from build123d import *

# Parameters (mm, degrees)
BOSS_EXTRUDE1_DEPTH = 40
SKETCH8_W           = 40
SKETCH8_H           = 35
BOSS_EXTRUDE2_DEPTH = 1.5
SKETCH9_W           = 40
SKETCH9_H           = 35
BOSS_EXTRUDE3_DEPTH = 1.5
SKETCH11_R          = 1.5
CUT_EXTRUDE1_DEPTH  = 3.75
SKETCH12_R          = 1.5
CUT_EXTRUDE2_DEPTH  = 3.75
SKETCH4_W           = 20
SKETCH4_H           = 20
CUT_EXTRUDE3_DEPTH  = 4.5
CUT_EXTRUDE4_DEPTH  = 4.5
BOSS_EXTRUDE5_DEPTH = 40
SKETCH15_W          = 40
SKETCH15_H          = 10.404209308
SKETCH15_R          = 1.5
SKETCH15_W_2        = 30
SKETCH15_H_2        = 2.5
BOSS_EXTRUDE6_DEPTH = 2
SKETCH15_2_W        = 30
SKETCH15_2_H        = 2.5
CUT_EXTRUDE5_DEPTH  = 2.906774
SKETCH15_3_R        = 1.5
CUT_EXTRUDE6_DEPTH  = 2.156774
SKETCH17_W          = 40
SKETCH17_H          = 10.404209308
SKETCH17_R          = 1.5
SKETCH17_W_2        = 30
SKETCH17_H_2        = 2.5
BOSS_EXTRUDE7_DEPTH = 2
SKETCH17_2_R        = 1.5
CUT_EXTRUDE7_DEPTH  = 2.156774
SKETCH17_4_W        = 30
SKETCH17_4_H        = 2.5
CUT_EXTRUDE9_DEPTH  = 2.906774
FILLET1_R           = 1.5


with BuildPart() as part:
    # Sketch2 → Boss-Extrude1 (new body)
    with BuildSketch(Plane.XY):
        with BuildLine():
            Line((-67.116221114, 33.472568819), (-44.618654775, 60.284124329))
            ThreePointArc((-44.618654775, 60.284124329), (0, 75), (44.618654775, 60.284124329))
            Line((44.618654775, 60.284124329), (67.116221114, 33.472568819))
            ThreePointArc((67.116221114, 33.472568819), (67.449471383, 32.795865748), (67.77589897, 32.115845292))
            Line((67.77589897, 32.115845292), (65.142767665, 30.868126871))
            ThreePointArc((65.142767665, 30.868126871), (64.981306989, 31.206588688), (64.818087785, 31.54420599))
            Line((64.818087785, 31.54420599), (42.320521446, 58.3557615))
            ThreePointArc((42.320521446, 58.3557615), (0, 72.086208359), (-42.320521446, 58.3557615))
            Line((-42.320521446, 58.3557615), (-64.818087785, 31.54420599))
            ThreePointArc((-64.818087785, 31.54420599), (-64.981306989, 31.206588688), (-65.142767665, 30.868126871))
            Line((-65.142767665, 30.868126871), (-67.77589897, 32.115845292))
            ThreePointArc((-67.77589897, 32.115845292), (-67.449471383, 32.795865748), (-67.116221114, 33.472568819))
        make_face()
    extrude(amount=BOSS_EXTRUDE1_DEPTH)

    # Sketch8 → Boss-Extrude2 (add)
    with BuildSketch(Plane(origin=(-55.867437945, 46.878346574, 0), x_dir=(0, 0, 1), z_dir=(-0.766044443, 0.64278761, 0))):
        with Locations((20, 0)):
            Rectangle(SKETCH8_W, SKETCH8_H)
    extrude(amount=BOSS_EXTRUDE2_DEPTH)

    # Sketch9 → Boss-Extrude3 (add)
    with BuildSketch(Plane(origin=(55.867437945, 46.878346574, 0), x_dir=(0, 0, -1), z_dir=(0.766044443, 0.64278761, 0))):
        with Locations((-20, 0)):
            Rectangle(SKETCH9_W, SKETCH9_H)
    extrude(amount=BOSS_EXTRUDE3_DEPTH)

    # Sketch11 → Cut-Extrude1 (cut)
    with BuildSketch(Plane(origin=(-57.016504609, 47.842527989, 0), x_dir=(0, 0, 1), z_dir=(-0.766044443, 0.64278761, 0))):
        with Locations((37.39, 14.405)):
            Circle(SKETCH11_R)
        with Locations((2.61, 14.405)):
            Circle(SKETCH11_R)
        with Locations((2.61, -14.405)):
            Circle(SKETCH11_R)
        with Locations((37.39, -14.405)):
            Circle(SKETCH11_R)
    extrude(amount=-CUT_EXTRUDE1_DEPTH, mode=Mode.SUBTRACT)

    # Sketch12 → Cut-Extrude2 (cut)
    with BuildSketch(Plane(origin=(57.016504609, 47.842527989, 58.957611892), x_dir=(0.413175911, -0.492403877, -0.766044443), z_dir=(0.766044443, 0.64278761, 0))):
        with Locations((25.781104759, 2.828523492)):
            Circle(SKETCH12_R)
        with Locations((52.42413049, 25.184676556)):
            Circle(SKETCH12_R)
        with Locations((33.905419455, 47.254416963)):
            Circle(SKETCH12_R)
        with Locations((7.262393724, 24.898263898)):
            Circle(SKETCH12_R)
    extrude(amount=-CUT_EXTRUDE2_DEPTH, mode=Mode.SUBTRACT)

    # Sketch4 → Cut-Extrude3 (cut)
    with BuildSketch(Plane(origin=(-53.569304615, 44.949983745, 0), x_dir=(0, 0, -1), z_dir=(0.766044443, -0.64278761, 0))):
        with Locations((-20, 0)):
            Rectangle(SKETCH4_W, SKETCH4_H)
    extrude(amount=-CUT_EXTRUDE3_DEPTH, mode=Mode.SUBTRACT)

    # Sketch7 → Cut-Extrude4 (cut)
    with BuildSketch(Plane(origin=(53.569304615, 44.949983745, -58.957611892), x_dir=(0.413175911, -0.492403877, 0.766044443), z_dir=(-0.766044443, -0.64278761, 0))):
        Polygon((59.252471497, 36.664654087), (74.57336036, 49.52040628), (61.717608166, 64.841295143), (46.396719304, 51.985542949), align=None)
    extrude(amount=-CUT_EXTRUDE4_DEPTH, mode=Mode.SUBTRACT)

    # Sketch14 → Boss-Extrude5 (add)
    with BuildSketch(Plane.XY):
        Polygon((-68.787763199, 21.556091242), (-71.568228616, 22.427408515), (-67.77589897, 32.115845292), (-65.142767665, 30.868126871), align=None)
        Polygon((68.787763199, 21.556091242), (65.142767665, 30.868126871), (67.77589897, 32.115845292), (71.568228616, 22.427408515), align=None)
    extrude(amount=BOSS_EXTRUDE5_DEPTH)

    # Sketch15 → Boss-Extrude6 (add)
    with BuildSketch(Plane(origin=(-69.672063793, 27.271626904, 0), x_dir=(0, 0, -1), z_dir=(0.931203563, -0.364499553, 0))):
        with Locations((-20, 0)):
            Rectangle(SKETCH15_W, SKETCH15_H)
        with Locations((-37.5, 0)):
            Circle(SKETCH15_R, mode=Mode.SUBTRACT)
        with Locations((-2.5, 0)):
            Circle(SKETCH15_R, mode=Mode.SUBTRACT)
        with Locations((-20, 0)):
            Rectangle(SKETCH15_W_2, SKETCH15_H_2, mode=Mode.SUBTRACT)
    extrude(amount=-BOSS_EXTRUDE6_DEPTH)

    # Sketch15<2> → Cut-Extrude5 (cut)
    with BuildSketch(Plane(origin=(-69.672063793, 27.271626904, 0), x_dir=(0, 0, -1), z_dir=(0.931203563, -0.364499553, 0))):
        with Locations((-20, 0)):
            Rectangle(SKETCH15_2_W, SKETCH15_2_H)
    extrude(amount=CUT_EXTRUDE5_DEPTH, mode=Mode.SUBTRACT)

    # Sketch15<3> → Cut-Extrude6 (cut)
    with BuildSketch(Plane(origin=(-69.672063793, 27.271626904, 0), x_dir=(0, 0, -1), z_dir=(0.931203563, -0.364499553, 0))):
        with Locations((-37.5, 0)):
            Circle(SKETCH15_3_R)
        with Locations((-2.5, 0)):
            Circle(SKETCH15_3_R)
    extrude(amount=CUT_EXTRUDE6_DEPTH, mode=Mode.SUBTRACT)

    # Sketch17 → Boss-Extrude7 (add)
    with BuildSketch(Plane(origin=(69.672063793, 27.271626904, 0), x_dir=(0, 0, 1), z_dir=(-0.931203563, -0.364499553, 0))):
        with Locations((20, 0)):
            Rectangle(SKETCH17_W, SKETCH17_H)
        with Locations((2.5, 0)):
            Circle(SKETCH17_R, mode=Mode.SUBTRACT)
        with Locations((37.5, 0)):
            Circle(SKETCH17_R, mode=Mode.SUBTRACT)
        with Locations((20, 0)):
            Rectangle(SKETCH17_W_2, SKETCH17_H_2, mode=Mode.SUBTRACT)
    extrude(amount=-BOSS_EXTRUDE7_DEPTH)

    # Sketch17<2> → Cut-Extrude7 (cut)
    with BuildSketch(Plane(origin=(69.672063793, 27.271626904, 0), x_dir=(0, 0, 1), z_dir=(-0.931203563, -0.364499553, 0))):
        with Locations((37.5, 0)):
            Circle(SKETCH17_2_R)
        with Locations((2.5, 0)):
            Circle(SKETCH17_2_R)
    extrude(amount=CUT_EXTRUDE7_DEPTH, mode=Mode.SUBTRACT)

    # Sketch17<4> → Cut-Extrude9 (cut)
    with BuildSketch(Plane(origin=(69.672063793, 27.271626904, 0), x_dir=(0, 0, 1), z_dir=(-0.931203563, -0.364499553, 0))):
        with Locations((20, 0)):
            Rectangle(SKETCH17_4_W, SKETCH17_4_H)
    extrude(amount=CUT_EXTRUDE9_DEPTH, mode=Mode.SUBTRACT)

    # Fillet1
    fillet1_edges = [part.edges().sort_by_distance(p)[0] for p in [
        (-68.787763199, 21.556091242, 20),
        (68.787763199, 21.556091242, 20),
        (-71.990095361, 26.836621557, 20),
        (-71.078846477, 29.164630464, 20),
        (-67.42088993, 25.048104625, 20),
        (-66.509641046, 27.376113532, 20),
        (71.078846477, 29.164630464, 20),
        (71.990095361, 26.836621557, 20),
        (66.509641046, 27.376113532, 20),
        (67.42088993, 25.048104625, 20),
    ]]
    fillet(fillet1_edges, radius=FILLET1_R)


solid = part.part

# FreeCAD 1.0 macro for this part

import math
import FreeCAD as App
import Part
import Sketcher
from FreeCAD import Vector
Q = App.Units.Quantity


def edges_at(feature, points):
    """Names of the edges that pass closest to the given points."""
    edges = feature.Shape.Edges
    near = lambda p: min(range(len(edges)), key=lambda i: edges[i].distToShape(Part.Vertex(*p))[0])
    return sorted({f"Edge{near(p) + 1}" for p in points})

doc = App.newDocument("Part")
body = doc.addObject("PartDesign::Body", "Body")

# Sketch on XY plane
sketch1 = body.newObject("Sketcher::SketchObject", "Sketch")
sketch1.AttachmentSupport = (doc.getObject("XY_Plane"), [""])
sketch1.MapMode = "FlatFace"
sketch1.addGeometry([
    Part.LineSegment(Vector(-44.618655, 60.284124, 0), Vector(-67.116221, 33.472569, 0)),  # 0
    Part.ArcOfCircle(Part.Circle(Vector(-0.000002, 0.000001, 0), Vector(0, 0, 1), 74.999998), math.radians(153.493399), math.radians(154.645904)),  # 1
    Part.LineSegment(Vector(-67.775899, 32.115845, 0), Vector(-65.142768, 30.868127, 0)),  # 2
    Part.ArcOfCircle(Part.Circle(Vector(0.000033, -0.000016, 0), Vector(0, 0, 1), 72.086245), math.radians(154.049784), math.radians(154.645904)),  # 3
    Part.LineSegment(Vector(-64.818088, 31.544206, 0), Vector(-42.320521, 58.355761, 0)),  # 4
    Part.ArcOfCircle(Part.Circle(Vector(0, 0, 0), Vector(0, 0, 1), 72.086208), math.radians(54.049784), math.radians(125.950216)),  # 5
    Part.LineSegment(Vector(42.320521, 58.355761, 0), Vector(64.818088, 31.544206, 0)),  # 6
    Part.ArcOfCircle(Part.Circle(Vector(-0.000033, -0.000016, 0), Vector(0, 0, 1), 72.086245), math.radians(25.354096), math.radians(25.950216)),  # 7
    Part.LineSegment(Vector(65.142768, 30.868127, 0), Vector(67.775899, 32.115845, 0)),  # 8
    Part.ArcOfCircle(Part.Circle(Vector(0.000002, 0.000001, 0), Vector(0, 0, 1), 74.999998), math.radians(25.354096), math.radians(26.506601)),  # 9
    Part.LineSegment(Vector(67.116221, 33.472569, 0), Vector(44.618655, 60.284124, 0)),  # 10
    Part.ArcOfCircle(Part.Circle(Vector(0, 0, 0), Vector(0, 0, 1), 75), math.radians(53.493399), math.radians(126.506601)),  # 11
], False)
sketch1.addConstraint([
    Sketcher.Constraint("Coincident", 0, 2, 1, 1),
    Sketcher.Constraint("Coincident", 1, 2, 2, 1),
    Sketcher.Constraint("Coincident", 2, 2, 3, 2),
    Sketcher.Constraint("Coincident", 3, 1, 4, 1),
    Sketcher.Constraint("Coincident", 4, 2, 5, 2),
    Sketcher.Constraint("Coincident", 5, 1, 6, 1),
    Sketcher.Constraint("Coincident", 6, 2, 7, 2),
    Sketcher.Constraint("Coincident", 7, 1, 8, 1),
    Sketcher.Constraint("Coincident", 8, 2, 9, 1),
    Sketcher.Constraint("Coincident", 9, 2, 10, 1),
    Sketcher.Constraint("Coincident", 10, 2, 11, 1),
    Sketcher.Constraint("Coincident", 11, 2, 0, 1),
    Sketcher.Constraint("Coincident", 1, 3, -1, 1),
    Sketcher.Constraint("Coincident", 5, 3, -1, 1),
    Sketcher.Constraint("Coincident", 9, 3, -1, 1),
    Sketcher.Constraint("Coincident", 11, 3, -1, 1),
    Sketcher.Constraint("Equal", 3, 7),
    Sketcher.Constraint("Equal", 1, 9),
    Sketcher.Constraint("Symmetric", 3, 3, 7, 3, -2),
    Sketcher.Constraint("Parallel", 0, 4),
    Sketcher.Constraint("Parallel", 6, 10),
    Sketcher.Constraint("Horizontal", 4, 2, 5, 1),
    Sketcher.Constraint("Horizontal", 3, 1, 6, 2),
    Sketcher.Constraint("Horizontal", 2, 2, 7, 1),
    Sketcher.Constraint("Horizontal", 1, 2, 8, 2),
    Sketcher.Constraint("Horizontal", 0, 2, 9, 2),
    Sketcher.Constraint("Equal", 0, 4),
    Sketcher.Constraint("Radius", 11, Q("75 mm")),
    Sketcher.Constraint("Angle", 0, Q("-130 deg")),
    Sketcher.Constraint("Distance", 0, Q("35 mm")),
    Sketcher.Constraint("Radius", 5, Q("72.086208 mm")),
    Sketcher.Constraint("Radius", 1, Q("74.999998 mm")),
    Sketcher.Constraint("Radius", 3, Q("72.086245 mm")),
    Sketcher.Constraint("DistanceX", 1, 2, -1, 1, Q("67.775899 mm")),
    Sketcher.Constraint("DistanceX", 0, 2, 4, 2, Q("24.7957 mm")),
    Sketcher.Constraint("Distance", 2, Q("2.913792 mm")),
    Sketcher.Constraint("DistanceX", 1, 2, 2, 2, Q("2.633131 mm")),
])
pad1 = body.newObject("PartDesign::Pad", "Pad")
pad1.Profile = sketch1
pad1.Length = 40

# Sketch on an angled plane
sketch2 = body.newObject("Sketcher::SketchObject", "Sketch001")
sketch2.Placement = App.Placement(Vector(-55.867438, 46.878347, 0), App.Rotation(Vector(0, 0, 1), Vector(0.64278761, 0.766044443, 0), Vector(-0.766044443, 0.64278761, 0), "ZXY"))
sketch2.addGeometry([
    Part.LineSegment(Vector(0, 18, 0), Vector(0, -18, 0)),
    Part.LineSegment(Vector(0, -18, 0), Vector(40, -18, 0)),
    Part.LineSegment(Vector(40, -18, 0), Vector(40, 18, 0)),
    Part.LineSegment(Vector(40, 18, 0), Vector(0, 18, 0)),
], False)
sketch2.addConstraint([
    Sketcher.Constraint("Coincident", 0, 2, 1, 1),
    Sketcher.Constraint("Coincident", 1, 2, 2, 1),
    Sketcher.Constraint("Coincident", 2, 2, 3, 1),
    Sketcher.Constraint("Coincident", 3, 2, 0, 1),
    Sketcher.Constraint("Vertical", 0),
    Sketcher.Constraint("Horizontal", 1),
    Sketcher.Constraint("Vertical", 2),
    Sketcher.Constraint("Horizontal", 3),
    Sketcher.Constraint("Symmetric", 0, 2, 3, 2, -1, 1),
    Sketcher.Constraint("DistanceX", 1, 1, 1, 2, Q("40 mm")),
    Sketcher.Constraint("DistanceY", 0, 2, 0, 1, Q("35 mm")),
])
pad2 = body.newObject("PartDesign::Pad", "Pad001")
pad2.Profile = sketch2
pad2.Length = 1.5

# Sketch on an angled plane
sketch3 = body.newObject("Sketcher::SketchObject", "Sketch002")
sketch3.Placement = App.Placement(Vector(55.867438, 46.878347, 0), App.Rotation(Vector(0, 0, -1), Vector(-0.64278761, 0.766044443, 0), Vector(0.766044443, 0.64278761, 0), "ZXY"))
sketch3.addGeometry([
    Part.LineSegment(Vector(-40, 18, 0), Vector(-40, -18, 0)),
    Part.LineSegment(Vector(-40, -18, 0), Vector(0, -18, 0)),
    Part.LineSegment(Vector(0, -18, 0), Vector(0, 18, 0)),
    Part.LineSegment(Vector(0, 18, 0), Vector(-40, 18, 0)),
], False)
sketch3.addConstraint([
    Sketcher.Constraint("Coincident", 0, 2, 1, 1),
    Sketcher.Constraint("Coincident", 1, 2, 2, 1),
    Sketcher.Constraint("Coincident", 2, 2, 3, 1),
    Sketcher.Constraint("Coincident", 3, 2, 0, 1),
    Sketcher.Constraint("Vertical", 0),
    Sketcher.Constraint("Horizontal", 1),
    Sketcher.Constraint("Vertical", 2),
    Sketcher.Constraint("Horizontal", 3),
    Sketcher.Constraint("Symmetric", 1, 2, 2, 2, -1, 1),
    Sketcher.Constraint("DistanceX", 1, 1, 1, 2, Q("40 mm")),
    Sketcher.Constraint("DistanceY", 0, 2, 0, 1, Q("35 mm")),
])
pad3 = body.newObject("PartDesign::Pad", "Pad002")
pad3.Profile = sketch3
pad3.Length = 1.5

# Sketch on an angled plane
sketch4 = body.newObject("Sketcher::SketchObject", "Sketch003")
sketch4.Placement = App.Placement(Vector(-57.016505, 47.842528, 0), App.Rotation(Vector(0, 0, 1), Vector(0.64278761, 0.766044443, 0), Vector(-0.766044443, 0.64278761, 0), "ZXY"))
sketch4.addGeometry([
    Part.Circle(Vector(37.4, 14.4, 0), Vector(0, 0, 1), 1.5),
    Part.Circle(Vector(2.6, 14.4, 0), Vector(0, 0, 1), 1.5),
    Part.Circle(Vector(2.6, -14.4, 0), Vector(0, 0, 1), 1.5),
    Part.Circle(Vector(37.4, -14.4, 0), Vector(0, 0, 1), 1.5),
], False)
sketch4.addConstraint([
    Sketcher.Constraint("Equal", 0, 1),
    Sketcher.Constraint("Equal", 1, 2),
    Sketcher.Constraint("Equal", 2, 3),
    Sketcher.Constraint("Symmetric", 1, 3, 2, 3, -1),
    Sketcher.Constraint("Symmetric", 0, 3, 3, 3, -1),
    Sketcher.Constraint("Horizontal", 0, 3, 1, 3),
    Sketcher.Constraint("Diameter", 0, Q("3 mm")),
    Sketcher.Constraint("DistanceX", -1, 1, 0, 3, Q("37.39 mm")),
    Sketcher.Constraint("DistanceX", -1, 1, 1, 3, Q("2.61 mm")),
    Sketcher.Constraint("DistanceY", 2, 3, 1, 3, Q("28.81 mm")),
])
pocket1 = body.newObject("PartDesign::Pocket", "Pocket")
pocket1.Profile = sketch4
pocket1.Length = 3.75

# Sketch on an angled plane
sketch5 = body.newObject("Sketcher::SketchObject", "Sketch004")
sketch5.Placement = App.Placement(Vector(57.016505, 47.842528, 58.957612), App.Rotation(Vector(0.413175911, -0.492403877, -0.766044443), Vector(-0.492403877, 0.586824089, -0.64278761), Vector(0.766044443, 0.64278761, 0), "ZXY"))
sketch5.addGeometry([
    Part.Circle(Vector(25.8, 2.8, 0), Vector(0, 0, 1), 1.5),
    Part.Circle(Vector(52.4, 25.2, 0), Vector(0, 0, 1), 1.5),
    Part.Circle(Vector(33.9, 47.3, 0), Vector(0, 0, 1), 1.5),
    Part.Circle(Vector(7.3, 24.9, 0), Vector(0, 0, 1), 1.5),
], False)
sketch5.addConstraint([
    Sketcher.Constraint("Equal", 0, 1),
    Sketcher.Constraint("Equal", 1, 2),
    Sketcher.Constraint("Equal", 2, 3),
    Sketcher.Constraint("Diameter", 0, Q("3 mm")),
    Sketcher.Constraint("DistanceX", -1, 1, 1, 3, Q("52.42413 mm")),
    Sketcher.Constraint("DistanceX", -1, 1, 2, 3, Q("33.905419 mm")),
    Sketcher.Constraint("DistanceY", 1, 3, 2, 3, Q("22.06974 mm")),
    Sketcher.Constraint("DistanceX", 3, 3, 0, 3, Q("18.518711 mm")),
    Sketcher.Constraint("DistanceY", 0, 3, 3, 3, Q("22.06974 mm")),
    Sketcher.Constraint("DistanceX", -1, 1, 0, 3, Q("25.781105 mm")),
    Sketcher.Constraint("DistanceY", -1, 1, 0, 3, Q("2.828523 mm")),
    Sketcher.Constraint("DistanceY", -1, 1, 1, 3, Q("25.184677 mm")),
])
pocket2 = body.newObject("PartDesign::Pocket", "Pocket001")
pocket2.Profile = sketch5
pocket2.Length = 3.75

# Sketch on an angled plane
sketch6 = body.newObject("Sketcher::SketchObject", "Sketch005")
sketch6.Placement = App.Placement(Vector(-53.569305, 44.949984, 0), App.Rotation(Vector(0, 0, -1), Vector(0.64278761, 0.766044443, 0), Vector(0.766044443, -0.64278761, 0), "ZXY"))
sketch6.addGeometry([
    Part.LineSegment(Vector(-30, 10, 0), Vector(-30, -10, 0)),
    Part.LineSegment(Vector(-30, -10, 0), Vector(-10, -10, 0)),
    Part.LineSegment(Vector(-10, -10, 0), Vector(-10, 10, 0)),
    Part.LineSegment(Vector(-10, 10, 0), Vector(-30, 10, 0)),
], False)
sketch6.addConstraint([
    Sketcher.Constraint("Coincident", 0, 2, 1, 1),
    Sketcher.Constraint("Coincident", 1, 2, 2, 1),
    Sketcher.Constraint("Coincident", 2, 2, 3, 1),
    Sketcher.Constraint("Coincident", 3, 2, 0, 1),
    Sketcher.Constraint("Vertical", 0),
    Sketcher.Constraint("Horizontal", 1),
    Sketcher.Constraint("Vertical", 2),
    Sketcher.Constraint("Horizontal", 3),
    Sketcher.Constraint("Equal", 3, 0),
    Sketcher.Constraint("DistanceX", 1, 1, 1, 2, Q("20 mm")),
    Sketcher.Constraint("DistanceX", 0, 2, -1, 1, Q("30 mm")),
    Sketcher.Constraint("DistanceY", 0, 2, -1, 1, Q("10 mm")),
])
pocket3 = body.newObject("PartDesign::Pocket", "Pocket002")
pocket3.Profile = sketch6
pocket3.Length = 4.5

# Sketch on an angled plane
sketch7 = body.newObject("Sketcher::SketchObject", "Sketch006")
sketch7.Placement = App.Placement(Vector(53.569305, 44.949984, -58.957612), App.Rotation(Vector(0.413175911, -0.492403877, 0.766044443), Vector(-0.492403877, 0.586824089, 0.64278761), Vector(-0.766044443, -0.64278761, 0), "ZXY"))
sketch7.addGeometry([
    Part.LineSegment(Vector(59, 37, 0), Vector(75, 50, 0)),
    Part.LineSegment(Vector(75, 50, 0), Vector(62, 65, 0)),
    Part.LineSegment(Vector(62, 65, 0), Vector(46, 52, 0)),
    Part.LineSegment(Vector(46, 52, 0), Vector(59, 37, 0)),
], False)
sketch7.addConstraint([
    Sketcher.Constraint("Coincident", 0, 2, 1, 1),
    Sketcher.Constraint("Coincident", 1, 2, 2, 1),
    Sketcher.Constraint("Coincident", 2, 2, 3, 1),
    Sketcher.Constraint("Coincident", 3, 2, 0, 1),
    Sketcher.Constraint("Perpendicular", 0, 1),
    Sketcher.Constraint("Perpendicular", 1, 2),
    Sketcher.Constraint("Perpendicular", 2, 3),
    Sketcher.Constraint("Equal", 0, 1),
    Sketcher.Constraint("Angle", 0, Q("40 deg")),
    Sketcher.Constraint("Distance", 0, Q("20 mm")),
    Sketcher.Constraint("DistanceX", -1, 1, 0, 2, Q("74.57336 mm")),
    Sketcher.Constraint("DistanceY", -1, 1, 0, 2, Q("49.520406 mm")),
])
pocket4 = body.newObject("PartDesign::Pocket", "Pocket003")
pocket4.Profile = sketch7
pocket4.Length = 4.5

# Sketch on XY plane
sketch8 = body.newObject("Sketcher::SketchObject", "Sketch007")
sketch8.AttachmentSupport = (doc.getObject("XY_Plane"), [""])
sketch8.MapMode = "FlatFace"
sketch8.addGeometry([
    Part.LineSegment(Vector(-71.6, 22.4, 0), Vector(-68.8, 21.6, 0)),  # 0
    Part.LineSegment(Vector(-68.8, 21.6, 0), Vector(-65.1, 30.9, 0)),  # 1
    Part.LineSegment(Vector(-65.1, 30.9, 0), Vector(-67.8, 32.1, 0)),  # 2
    Part.LineSegment(Vector(-67.8, 32.1, 0), Vector(-71.6, 22.4, 0)),  # 3
    Part.LineSegment(Vector(65.1, 30.9, 0), Vector(68.8, 21.6, 0)),  # 4
    Part.LineSegment(Vector(68.8, 21.6, 0), Vector(71.6, 22.4, 0)),  # 5
    Part.LineSegment(Vector(71.6, 22.4, 0), Vector(67.8, 32.1, 0)),  # 6
    Part.LineSegment(Vector(67.8, 32.1, 0), Vector(65.1, 30.9, 0)),  # 7
], False)
sketch8.addConstraint([
    Sketcher.Constraint("Coincident", 0, 2, 1, 1),
    Sketcher.Constraint("Coincident", 1, 2, 2, 1),
    Sketcher.Constraint("Coincident", 2, 2, 3, 1),
    Sketcher.Constraint("Coincident", 3, 2, 0, 1),
    Sketcher.Constraint("Coincident", 4, 2, 5, 1),
    Sketcher.Constraint("Coincident", 5, 2, 6, 1),
    Sketcher.Constraint("Coincident", 6, 2, 7, 1),
    Sketcher.Constraint("Coincident", 7, 2, 4, 1),
    Sketcher.Constraint("Symmetric", 0, 2, 4, 2, -2),
    Sketcher.Constraint("Symmetric", 3, 2, 5, 2, -2),
    Sketcher.Constraint("Symmetric", 2, 2, 6, 2, -2),
    Sketcher.Constraint("Symmetric", 1, 2, 7, 2, -2),
    Sketcher.Constraint("Parallel", 1, 3),
    Sketcher.Constraint("Equal", 0, 2),
    Sketcher.Constraint("Distance", 1, Q("10 mm")),
    Sketcher.Constraint("DistanceX", 2, 2, -1, 1, Q("67.775899 mm")),
    Sketcher.Constraint("Distance", 0, Q("2.913792 mm")),
    Sketcher.Constraint("Distance", 3, Q("10.404209 mm")),
    Sketcher.Constraint("DistanceY", -1, 1, 0, 2, Q("21.556091 mm")),
    Sketcher.Constraint("DistanceX", 3, 2, -1, 1, Q("71.568229 mm")),
])
pad4 = body.newObject("PartDesign::Pad", "Pad003")
pad4.Profile = sketch8
pad4.Length = 40

# Sketch on an angled plane
sketch9 = body.newObject("Sketcher::SketchObject", "Sketch008")
sketch9.Placement = App.Placement(Vector(-69.672064, 27.271627, 0), App.Rotation(Vector(0, 0, -1), Vector(0.364499553, 0.931203563, 0), Vector(0.931203563, -0.364499553, 0), "ZXY"))
sketch9.addGeometry([
    Part.LineSegment(Vector(-40, 5.2, 0), Vector(-40, -5.2, 0)),  # 0
    Part.LineSegment(Vector(-40, -5.2, 0), Vector(0, -5.2, 0)),  # 1
    Part.LineSegment(Vector(0, -5.2, 0), Vector(0, 5.2, 0)),  # 2
    Part.LineSegment(Vector(0, 5.2, 0), Vector(-40, 5.2, 0)),  # 3
    Part.Circle(Vector(-37.5, 0, 0), Vector(0, 0, 1), 1.5),  # 4
    Part.LineSegment(Vector(-5, -1.2, 0), Vector(-35, -1.2, 0)),  # 5
    Part.LineSegment(Vector(-35, -1.2, 0), Vector(-35, 1.2, 0)),  # 6
    Part.LineSegment(Vector(-35, 1.2, 0), Vector(-5, 1.2, 0)),  # 7
    Part.LineSegment(Vector(-5, 1.2, 0), Vector(-5, -1.2, 0)),  # 8
    Part.Circle(Vector(-2.5, 0, 0), Vector(0, 0, 1), 1.5),  # 9
], False)
sketch9.addConstraint([
    Sketcher.Constraint("Coincident", 0, 2, 1, 1),
    Sketcher.Constraint("Coincident", 1, 2, 2, 1),
    Sketcher.Constraint("Coincident", 2, 2, 3, 1),
    Sketcher.Constraint("Coincident", 3, 2, 0, 1),
    Sketcher.Constraint("Coincident", 5, 2, 6, 1),
    Sketcher.Constraint("Coincident", 6, 2, 7, 1),
    Sketcher.Constraint("Coincident", 7, 2, 8, 1),
    Sketcher.Constraint("Coincident", 8, 2, 5, 1),
    Sketcher.Constraint("Vertical", 0),
    Sketcher.Constraint("Horizontal", 1),
    Sketcher.Constraint("Vertical", 2),
    Sketcher.Constraint("Horizontal", 3),
    Sketcher.Constraint("Horizontal", 5),
    Sketcher.Constraint("Vertical", 6),
    Sketcher.Constraint("Horizontal", 7),
    Sketcher.Constraint("Vertical", 8),
    Sketcher.Constraint("Equal", 4, 9),
    Sketcher.Constraint("Symmetric", 1, 2, 2, 2, -1, 1),
    Sketcher.Constraint("PointOnObject", 4, 3, -1),
    Sketcher.Constraint("PointOnObject", 9, 3, -1),
    Sketcher.Constraint("Diameter", 4, Q("3 mm")),
    Sketcher.Constraint("DistanceX", 1, 1, 1, 2, Q("40 mm")),
    Sketcher.Constraint("DistanceX", 5, 2, 5, 1, Q("30 mm")),
    Sketcher.Constraint("DistanceY", 6, 1, 6, 2, Q("2.5 mm")),
    Sketcher.Constraint("DistanceX", 5, 2, -1, 1, Q("35 mm")),
    Sketcher.Constraint("DistanceX", 4, 3, 9, 3, Q("35 mm")),
    Sketcher.Constraint("DistanceX", 4, 3, -1, 1, Q("37.5 mm")),
    Sketcher.Constraint("DistanceY", 5, 2, -1, 1, Q("1.25 mm")),
    Sketcher.Constraint("DistanceY", 0, 2, 0, 1, Q("10.404209 mm")),
])
pad5 = body.newObject("PartDesign::Pad", "Pad004")
pad5.Profile = sketch9
pad5.Length = 2
pad5.Reversed = True

# Sketch on an angled plane
sketch10 = body.newObject("Sketcher::SketchObject", "Sketch009")
sketch10.Placement = App.Placement(Vector(-69.672064, 27.271627, 0), App.Rotation(Vector(0, 0, -1), Vector(0.364499553, 0.931203563, 0), Vector(0.931203563, -0.364499553, 0), "ZXY"))
sketch10.addGeometry([
    Part.LineSegment(Vector(-35, 1.2, 0), Vector(-35, -1.2, 0)),
    Part.LineSegment(Vector(-35, -1.2, 0), Vector(-5, -1.2, 0)),
    Part.LineSegment(Vector(-5, -1.2, 0), Vector(-5, 1.2, 0)),
    Part.LineSegment(Vector(-5, 1.2, 0), Vector(-35, 1.2, 0)),
], False)
sketch10.addConstraint([
    Sketcher.Constraint("Coincident", 0, 2, 1, 1),
    Sketcher.Constraint("Coincident", 1, 2, 2, 1),
    Sketcher.Constraint("Coincident", 2, 2, 3, 1),
    Sketcher.Constraint("Coincident", 3, 2, 0, 1),
    Sketcher.Constraint("Vertical", 0),
    Sketcher.Constraint("Horizontal", 1),
    Sketcher.Constraint("Vertical", 2),
    Sketcher.Constraint("Horizontal", 3),
    Sketcher.Constraint("DistanceX", 1, 1, 1, 2, Q("30 mm")),
    Sketcher.Constraint("DistanceY", 0, 2, 0, 1, Q("2.5 mm")),
    Sketcher.Constraint("DistanceX", 0, 2, -1, 1, Q("35 mm")),
    Sketcher.Constraint("DistanceY", 0, 2, -1, 1, Q("1.25 mm")),
])
pocket5 = body.newObject("PartDesign::Pocket", "Pocket004")
pocket5.Profile = sketch10
pocket5.Length = 2.906774
pocket5.Reversed = True

# Sketch on an angled plane
sketch11 = body.newObject("Sketcher::SketchObject", "Sketch010")
sketch11.Placement = App.Placement(Vector(-69.672064, 27.271627, 0), App.Rotation(Vector(0, 0, -1), Vector(0.364499553, 0.931203563, 0), Vector(0.931203563, -0.364499553, 0), "ZXY"))
sketch11.addGeometry([
    Part.Circle(Vector(-37.5, 0, 0), Vector(0, 0, 1), 1.5),
    Part.Circle(Vector(-2.5, 0, 0), Vector(0, 0, 1), 1.5),
], False)
sketch11.addConstraint([
    Sketcher.Constraint("Equal", 0, 1),
    Sketcher.Constraint("PointOnObject", 0, 3, -1),
    Sketcher.Constraint("PointOnObject", 1, 3, -1),
    Sketcher.Constraint("Diameter", 0, Q("3 mm")),
    Sketcher.Constraint("DistanceX", 0, 3, 1, 3, Q("35 mm")),
    Sketcher.Constraint("DistanceX", 0, 3, -1, 1, Q("37.5 mm")),
])
pocket6 = body.newObject("PartDesign::Pocket", "Pocket005")
pocket6.Profile = sketch11
pocket6.Length = 2.156774
pocket6.Reversed = True

# Sketch on an angled plane
sketch12 = body.newObject("Sketcher::SketchObject", "Sketch011")
sketch12.Placement = App.Placement(Vector(69.672064, 27.271627, 0), App.Rotation(Vector(0, 0, 1), Vector(-0.364499553, 0.931203563, 0), Vector(-0.931203563, -0.364499553, 0), "ZXY"))
sketch12.addGeometry([
    Part.LineSegment(Vector(0, 5.2, 0), Vector(0, -5.2, 0)),  # 0
    Part.LineSegment(Vector(0, -5.2, 0), Vector(40, -5.2, 0)),  # 1
    Part.LineSegment(Vector(40, -5.2, 0), Vector(40, 5.2, 0)),  # 2
    Part.LineSegment(Vector(40, 5.2, 0), Vector(0, 5.2, 0)),  # 3
    Part.Circle(Vector(2.5, 0, 0), Vector(0, 0, 1), 1.5),  # 4
    Part.LineSegment(Vector(35, -1.2, 0), Vector(5, -1.2, 0)),  # 5
    Part.LineSegment(Vector(5, -1.2, 0), Vector(5, 1.2, 0)),  # 6
    Part.LineSegment(Vector(5, 1.2, 0), Vector(35, 1.2, 0)),  # 7
    Part.LineSegment(Vector(35, 1.2, 0), Vector(35, -1.2, 0)),  # 8
    Part.Circle(Vector(37.5, 0, 0), Vector(0, 0, 1), 1.5),  # 9
], False)
sketch12.addConstraint([
    Sketcher.Constraint("Coincident", 0, 2, 1, 1),
    Sketcher.Constraint("Coincident", 1, 2, 2, 1),
    Sketcher.Constraint("Coincident", 2, 2, 3, 1),
    Sketcher.Constraint("Coincident", 3, 2, 0, 1),
    Sketcher.Constraint("Coincident", 5, 2, 6, 1),
    Sketcher.Constraint("Coincident", 6, 2, 7, 1),
    Sketcher.Constraint("Coincident", 7, 2, 8, 1),
    Sketcher.Constraint("Coincident", 8, 2, 5, 1),
    Sketcher.Constraint("Vertical", 0),
    Sketcher.Constraint("Horizontal", 1),
    Sketcher.Constraint("Vertical", 2),
    Sketcher.Constraint("Horizontal", 3),
    Sketcher.Constraint("Horizontal", 5),
    Sketcher.Constraint("Vertical", 6),
    Sketcher.Constraint("Horizontal", 7),
    Sketcher.Constraint("Vertical", 8),
    Sketcher.Constraint("Equal", 4, 9),
    Sketcher.Constraint("Symmetric", 0, 2, 3, 2, -1, 1),
    Sketcher.Constraint("PointOnObject", 4, 3, -1),
    Sketcher.Constraint("PointOnObject", 9, 3, -1),
    Sketcher.Constraint("Diameter", 4, Q("3 mm")),
    Sketcher.Constraint("DistanceX", 1, 1, 1, 2, Q("40 mm")),
    Sketcher.Constraint("DistanceX", 5, 2, 5, 1, Q("30 mm")),
    Sketcher.Constraint("DistanceY", 6, 1, 6, 2, Q("2.5 mm")),
    Sketcher.Constraint("DistanceX", -1, 1, 5, 2, Q("5 mm")),
    Sketcher.Constraint("DistanceX", 4, 3, 9, 3, Q("35 mm")),
    Sketcher.Constraint("DistanceX", -1, 1, 4, 3, Q("2.5 mm")),
    Sketcher.Constraint("DistanceY", 5, 2, -1, 1, Q("1.25 mm")),
    Sketcher.Constraint("DistanceY", 0, 2, 0, 1, Q("10.404209 mm")),
])
pad6 = body.newObject("PartDesign::Pad", "Pad005")
pad6.Profile = sketch12
pad6.Length = 2
pad6.Reversed = True

# Sketch on an angled plane
sketch13 = body.newObject("Sketcher::SketchObject", "Sketch012")
sketch13.Placement = App.Placement(Vector(69.672064, 27.271627, 0), App.Rotation(Vector(0, 0, 1), Vector(-0.364499553, 0.931203563, 0), Vector(-0.931203563, -0.364499553, 0), "ZXY"))
sketch13.addGeometry([
    Part.Circle(Vector(37.5, 0, 0), Vector(0, 0, 1), 1.5),
    Part.Circle(Vector(2.5, 0, 0), Vector(0, 0, 1), 1.5),
], False)
sketch13.addConstraint([
    Sketcher.Constraint("Equal", 0, 1),
    Sketcher.Constraint("PointOnObject", 0, 3, -1),
    Sketcher.Constraint("PointOnObject", 1, 3, -1),
    Sketcher.Constraint("Diameter", 0, Q("3 mm")),
    Sketcher.Constraint("DistanceX", 1, 3, 0, 3, Q("35 mm")),
    Sketcher.Constraint("DistanceX", -1, 1, 0, 3, Q("37.5 mm")),
])
pocket7 = body.newObject("PartDesign::Pocket", "Pocket006")
pocket7.Profile = sketch13
pocket7.Length = 2.156774
pocket7.Reversed = True

# Sketch on an angled plane
sketch14 = body.newObject("Sketcher::SketchObject", "Sketch013")
sketch14.Placement = App.Placement(Vector(69.672064, 27.271627, 0), App.Rotation(Vector(0, 0, 1), Vector(-0.364499553, 0.931203563, 0), Vector(-0.931203563, -0.364499553, 0), "ZXY"))
sketch14.addGeometry([
    Part.LineSegment(Vector(5, 1.2, 0), Vector(5, -1.2, 0)),
    Part.LineSegment(Vector(5, -1.2, 0), Vector(35, -1.2, 0)),
    Part.LineSegment(Vector(35, -1.2, 0), Vector(35, 1.2, 0)),
    Part.LineSegment(Vector(35, 1.2, 0), Vector(5, 1.2, 0)),
], False)
sketch14.addConstraint([
    Sketcher.Constraint("Coincident", 0, 2, 1, 1),
    Sketcher.Constraint("Coincident", 1, 2, 2, 1),
    Sketcher.Constraint("Coincident", 2, 2, 3, 1),
    Sketcher.Constraint("Coincident", 3, 2, 0, 1),
    Sketcher.Constraint("Vertical", 0),
    Sketcher.Constraint("Horizontal", 1),
    Sketcher.Constraint("Vertical", 2),
    Sketcher.Constraint("Horizontal", 3),
    Sketcher.Constraint("DistanceX", 1, 1, 1, 2, Q("30 mm")),
    Sketcher.Constraint("DistanceY", 0, 2, 0, 1, Q("2.5 mm")),
    Sketcher.Constraint("DistanceX", -1, 1, 0, 2, Q("5 mm")),
    Sketcher.Constraint("DistanceY", 0, 2, -1, 1, Q("1.25 mm")),
])
pocket8 = body.newObject("PartDesign::Pocket", "Pocket007")
pocket8.Profile = sketch14
pocket8.Length = 2.906774
pocket8.Reversed = True
doc.recompute()

fillet = body.newObject("PartDesign::Fillet", "Fillet")
fillet.Base = (pocket8, edges_at(pocket8, [
    (-68.788, 21.556, 20),
    (68.788, 21.556, 20),
    (-71.99, 26.837, 20),
    (-71.079, 29.165, 20),
    (-67.421, 25.048, 20),
    (-66.51, 27.376, 20),
    (71.079, 29.165, 20),
    (71.99, 26.837, 20),
    (66.51, 27.376, 20),
    (67.421, 25.048, 20),
]))
fillet.Radius = 1.5

doc.recompute()
